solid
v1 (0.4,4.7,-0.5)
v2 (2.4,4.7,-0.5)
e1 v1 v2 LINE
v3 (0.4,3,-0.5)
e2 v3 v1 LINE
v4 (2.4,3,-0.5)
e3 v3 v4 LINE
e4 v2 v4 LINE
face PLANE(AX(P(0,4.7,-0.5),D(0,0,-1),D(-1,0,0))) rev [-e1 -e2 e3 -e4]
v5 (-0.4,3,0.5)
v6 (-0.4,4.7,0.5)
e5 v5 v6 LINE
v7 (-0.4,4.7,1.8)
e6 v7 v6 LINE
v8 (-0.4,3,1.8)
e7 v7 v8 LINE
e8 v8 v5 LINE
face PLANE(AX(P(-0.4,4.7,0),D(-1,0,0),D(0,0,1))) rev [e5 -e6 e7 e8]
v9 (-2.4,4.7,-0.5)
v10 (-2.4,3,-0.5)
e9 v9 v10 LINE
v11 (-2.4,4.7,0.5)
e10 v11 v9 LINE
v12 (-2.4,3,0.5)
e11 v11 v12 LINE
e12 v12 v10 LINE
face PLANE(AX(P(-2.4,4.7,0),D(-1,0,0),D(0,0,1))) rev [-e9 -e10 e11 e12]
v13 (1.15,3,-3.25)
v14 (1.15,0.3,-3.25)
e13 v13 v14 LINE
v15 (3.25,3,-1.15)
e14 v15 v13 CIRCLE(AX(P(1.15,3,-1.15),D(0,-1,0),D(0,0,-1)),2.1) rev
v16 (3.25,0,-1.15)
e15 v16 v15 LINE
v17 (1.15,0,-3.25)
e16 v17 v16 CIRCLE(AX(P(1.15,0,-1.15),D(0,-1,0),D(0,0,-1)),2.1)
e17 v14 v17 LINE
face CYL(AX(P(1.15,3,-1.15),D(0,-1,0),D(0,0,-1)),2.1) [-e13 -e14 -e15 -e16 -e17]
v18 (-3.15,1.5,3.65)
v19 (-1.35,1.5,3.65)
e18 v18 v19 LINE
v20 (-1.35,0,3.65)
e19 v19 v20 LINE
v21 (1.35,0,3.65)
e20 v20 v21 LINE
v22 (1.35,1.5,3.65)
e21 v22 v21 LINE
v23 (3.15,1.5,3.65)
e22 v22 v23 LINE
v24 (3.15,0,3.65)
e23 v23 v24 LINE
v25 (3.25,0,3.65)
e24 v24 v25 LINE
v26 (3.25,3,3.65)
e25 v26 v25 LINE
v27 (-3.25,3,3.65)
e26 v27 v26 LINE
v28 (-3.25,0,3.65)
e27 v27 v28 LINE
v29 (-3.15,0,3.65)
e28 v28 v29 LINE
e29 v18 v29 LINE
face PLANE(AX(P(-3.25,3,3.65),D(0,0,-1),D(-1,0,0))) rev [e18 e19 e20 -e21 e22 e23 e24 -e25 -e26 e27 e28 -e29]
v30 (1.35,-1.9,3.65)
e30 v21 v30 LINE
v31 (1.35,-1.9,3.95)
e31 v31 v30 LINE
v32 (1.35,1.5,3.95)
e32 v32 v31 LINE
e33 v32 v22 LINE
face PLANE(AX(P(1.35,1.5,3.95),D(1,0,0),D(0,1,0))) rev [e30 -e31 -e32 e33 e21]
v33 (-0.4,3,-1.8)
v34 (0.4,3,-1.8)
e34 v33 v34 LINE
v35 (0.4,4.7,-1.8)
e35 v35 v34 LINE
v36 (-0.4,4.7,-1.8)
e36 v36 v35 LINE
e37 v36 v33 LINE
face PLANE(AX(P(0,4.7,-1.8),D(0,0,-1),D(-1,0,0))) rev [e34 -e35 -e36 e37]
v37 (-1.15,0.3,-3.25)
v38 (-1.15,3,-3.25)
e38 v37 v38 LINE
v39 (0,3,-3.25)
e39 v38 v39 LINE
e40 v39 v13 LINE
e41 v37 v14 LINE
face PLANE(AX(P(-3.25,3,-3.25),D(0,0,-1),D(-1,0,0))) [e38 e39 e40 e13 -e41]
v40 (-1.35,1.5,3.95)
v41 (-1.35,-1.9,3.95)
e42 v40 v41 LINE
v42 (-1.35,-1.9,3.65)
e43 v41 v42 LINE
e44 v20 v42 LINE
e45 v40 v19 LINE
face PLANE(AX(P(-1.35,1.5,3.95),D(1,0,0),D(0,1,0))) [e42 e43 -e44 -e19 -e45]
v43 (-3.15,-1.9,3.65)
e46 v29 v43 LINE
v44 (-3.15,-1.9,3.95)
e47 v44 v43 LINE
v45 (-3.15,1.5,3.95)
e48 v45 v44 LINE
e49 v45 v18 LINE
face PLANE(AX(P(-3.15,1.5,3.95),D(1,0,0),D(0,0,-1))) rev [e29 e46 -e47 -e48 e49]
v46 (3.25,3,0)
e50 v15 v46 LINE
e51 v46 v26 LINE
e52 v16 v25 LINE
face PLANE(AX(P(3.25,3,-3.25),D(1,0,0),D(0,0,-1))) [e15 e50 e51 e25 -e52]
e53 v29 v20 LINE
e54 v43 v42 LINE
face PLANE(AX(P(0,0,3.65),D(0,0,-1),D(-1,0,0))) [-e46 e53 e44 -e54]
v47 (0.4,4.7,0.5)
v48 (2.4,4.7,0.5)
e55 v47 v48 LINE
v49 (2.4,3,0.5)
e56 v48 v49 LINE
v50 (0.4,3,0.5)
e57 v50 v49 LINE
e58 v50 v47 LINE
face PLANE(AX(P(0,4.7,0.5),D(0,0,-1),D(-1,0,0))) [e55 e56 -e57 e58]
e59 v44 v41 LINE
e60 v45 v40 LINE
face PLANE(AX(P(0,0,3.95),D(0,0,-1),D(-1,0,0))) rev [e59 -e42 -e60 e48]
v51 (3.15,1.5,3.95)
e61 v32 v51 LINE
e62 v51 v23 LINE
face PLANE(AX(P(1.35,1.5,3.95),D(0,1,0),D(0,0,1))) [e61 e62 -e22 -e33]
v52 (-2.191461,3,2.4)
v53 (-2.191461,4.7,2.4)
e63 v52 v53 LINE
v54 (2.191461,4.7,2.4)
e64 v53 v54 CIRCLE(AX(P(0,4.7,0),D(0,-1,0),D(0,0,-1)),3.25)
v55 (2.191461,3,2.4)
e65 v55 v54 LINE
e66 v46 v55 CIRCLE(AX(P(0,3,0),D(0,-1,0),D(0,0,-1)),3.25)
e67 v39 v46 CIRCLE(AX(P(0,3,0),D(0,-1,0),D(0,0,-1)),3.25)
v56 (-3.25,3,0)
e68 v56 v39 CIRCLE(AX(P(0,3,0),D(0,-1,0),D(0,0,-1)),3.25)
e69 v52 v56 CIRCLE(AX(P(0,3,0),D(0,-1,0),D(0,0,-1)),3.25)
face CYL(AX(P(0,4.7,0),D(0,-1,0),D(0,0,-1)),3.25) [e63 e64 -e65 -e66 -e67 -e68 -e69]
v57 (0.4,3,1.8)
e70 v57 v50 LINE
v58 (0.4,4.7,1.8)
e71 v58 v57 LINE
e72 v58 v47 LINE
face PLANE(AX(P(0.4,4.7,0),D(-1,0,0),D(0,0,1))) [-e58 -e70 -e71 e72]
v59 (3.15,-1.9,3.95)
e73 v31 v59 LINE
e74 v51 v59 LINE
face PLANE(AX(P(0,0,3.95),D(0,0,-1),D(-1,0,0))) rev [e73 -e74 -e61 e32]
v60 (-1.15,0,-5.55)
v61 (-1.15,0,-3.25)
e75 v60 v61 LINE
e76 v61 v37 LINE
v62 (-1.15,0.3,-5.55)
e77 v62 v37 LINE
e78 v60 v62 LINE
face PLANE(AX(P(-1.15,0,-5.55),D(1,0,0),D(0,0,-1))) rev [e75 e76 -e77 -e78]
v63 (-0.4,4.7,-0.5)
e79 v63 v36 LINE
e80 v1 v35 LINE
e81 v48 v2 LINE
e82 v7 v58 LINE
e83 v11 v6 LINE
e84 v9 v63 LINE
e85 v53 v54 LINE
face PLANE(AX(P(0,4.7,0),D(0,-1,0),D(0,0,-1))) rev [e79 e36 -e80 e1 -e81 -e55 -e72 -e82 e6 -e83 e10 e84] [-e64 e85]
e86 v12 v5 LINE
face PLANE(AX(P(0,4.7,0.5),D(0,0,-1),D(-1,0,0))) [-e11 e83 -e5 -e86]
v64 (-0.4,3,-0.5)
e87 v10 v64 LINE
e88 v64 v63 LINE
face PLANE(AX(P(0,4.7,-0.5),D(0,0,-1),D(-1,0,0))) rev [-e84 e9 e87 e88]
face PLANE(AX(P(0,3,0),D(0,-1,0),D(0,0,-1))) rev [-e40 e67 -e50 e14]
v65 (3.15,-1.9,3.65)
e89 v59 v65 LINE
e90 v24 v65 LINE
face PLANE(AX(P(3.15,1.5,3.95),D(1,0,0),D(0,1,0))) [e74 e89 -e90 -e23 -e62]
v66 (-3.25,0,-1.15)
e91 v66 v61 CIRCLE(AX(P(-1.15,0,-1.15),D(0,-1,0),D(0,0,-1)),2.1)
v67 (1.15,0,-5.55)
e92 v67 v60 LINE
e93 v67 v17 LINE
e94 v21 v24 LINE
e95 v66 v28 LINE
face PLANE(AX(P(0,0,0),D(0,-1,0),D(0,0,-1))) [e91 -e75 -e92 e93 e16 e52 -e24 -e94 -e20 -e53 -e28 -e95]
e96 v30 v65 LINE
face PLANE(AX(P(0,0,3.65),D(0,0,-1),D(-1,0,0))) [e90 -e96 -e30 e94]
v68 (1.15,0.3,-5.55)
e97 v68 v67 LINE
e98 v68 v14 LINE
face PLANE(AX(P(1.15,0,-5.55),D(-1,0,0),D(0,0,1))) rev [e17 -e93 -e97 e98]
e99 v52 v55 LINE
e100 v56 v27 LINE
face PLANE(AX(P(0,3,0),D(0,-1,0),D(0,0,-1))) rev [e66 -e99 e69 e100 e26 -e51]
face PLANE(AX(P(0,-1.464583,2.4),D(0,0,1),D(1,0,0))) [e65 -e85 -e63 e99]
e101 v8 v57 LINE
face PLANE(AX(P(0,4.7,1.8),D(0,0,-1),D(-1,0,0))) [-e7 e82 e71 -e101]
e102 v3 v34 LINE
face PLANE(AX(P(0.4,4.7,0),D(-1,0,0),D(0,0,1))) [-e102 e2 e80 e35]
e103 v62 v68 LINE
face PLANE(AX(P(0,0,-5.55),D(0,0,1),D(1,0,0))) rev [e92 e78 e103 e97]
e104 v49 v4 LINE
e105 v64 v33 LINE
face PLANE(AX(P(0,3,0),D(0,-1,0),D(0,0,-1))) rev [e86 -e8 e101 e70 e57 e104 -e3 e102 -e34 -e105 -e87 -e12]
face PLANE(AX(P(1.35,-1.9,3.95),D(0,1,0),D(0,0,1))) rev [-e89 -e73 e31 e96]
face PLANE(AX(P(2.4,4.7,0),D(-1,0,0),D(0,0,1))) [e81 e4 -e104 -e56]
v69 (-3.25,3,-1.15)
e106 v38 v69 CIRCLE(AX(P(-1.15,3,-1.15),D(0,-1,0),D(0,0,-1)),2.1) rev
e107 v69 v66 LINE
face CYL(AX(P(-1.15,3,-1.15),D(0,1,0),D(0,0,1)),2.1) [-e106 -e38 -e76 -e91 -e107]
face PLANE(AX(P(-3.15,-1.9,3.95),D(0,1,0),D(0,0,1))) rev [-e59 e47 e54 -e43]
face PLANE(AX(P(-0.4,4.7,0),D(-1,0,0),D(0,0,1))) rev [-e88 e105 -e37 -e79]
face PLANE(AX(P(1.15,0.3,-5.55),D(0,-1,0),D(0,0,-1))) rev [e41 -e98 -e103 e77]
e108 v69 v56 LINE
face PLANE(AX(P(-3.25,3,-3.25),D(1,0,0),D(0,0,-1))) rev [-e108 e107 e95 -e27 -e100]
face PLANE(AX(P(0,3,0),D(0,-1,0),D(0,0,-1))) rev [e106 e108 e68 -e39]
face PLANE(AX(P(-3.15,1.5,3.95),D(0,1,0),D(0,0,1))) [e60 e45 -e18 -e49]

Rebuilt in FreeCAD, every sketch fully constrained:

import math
import FreeCAD as App
import Part
import Sketcher

V = App.Vector


def edges_at(feature, points):
    """Names of the edges that pass closest to the given points."""
    edges = feature.Shape.Edges
    near = lambda p: min(range(len(edges)), key=lambda i: edges[i].distToShape(Part.Vertex(*p))[0])
    return sorted({f"Edge{near(p) + 1}" for p in points})


def add_polygon(sketch, points):
    """Adds a closed chain of lines whose ends are joined by coincident constraints."""
    first, n = sketch.GeometryCount, len(points)
    for a, b in zip(points, points[1:] + points[:1]):
        sketch.addGeometry(Part.LineSegment(App.Vector(*a, 0), App.Vector(*b, 0)), False)
    for i in range(n):
        sketch.addConstraint(Sketcher.Constraint("Coincident", first + i, 2, first + (i + 1) % n, 1))

doc = App.newDocument("Part")
params = doc.addObject("Spreadsheet::Sheet", "Params")
for row, (alias, value) in enumerate([
    ("sketch1_width", "6.5 mm"),
    ("sketch1_height", "6.9 mm"),
    ("pad1_length", "3 mm"),
    ("sketch2_diameter", "6.5 mm"),
    ("sketch2_width", "2 mm"),
    ("sketch2_height", "1 mm"),
    ("sketch2_width2", "0.8 mm"),
    ("sketch2_height2", "1.3 mm"),
    ("pad2_length", "1.7 mm"),
    ("sketch3_radius", "3.25 mm"),
    ("pocket1_length", "1.7 mm"),
    ("fillet_radius", "2.1 mm"),
    ("sketch4_width", "1.8 mm"),
    ("sketch4_height", "3.4 mm"),
    ("pad3_length", "0.3 mm"),
    ("sketch5_width", "2.3 mm"),
    ("sketch5_height", "0.3 mm"),
    ("pad4_length", "2.3 mm"),
], start=1):
    params.set(f"A{row}", alias)
    params.set(f"B{row}", "=" + value)
    params.setAlias(f"B{row}", alias)

body = doc.addObject("PartDesign::Body", "Body")

# Sketch on XZ plane
sketch1 = doc.addObject("Sketcher::SketchObject", "Sketch")
body.addObject(sketch1)
sketch1.AttachmentSupport = (doc.XZ_Plane, [""])
sketch1.MapMode = "FlatFace"
add_polygon(sketch1, [(-3, -3), (-3, 4), (3, 4), (3, -3)])  # lines 0-3
sketch1.addConstraint([
    Sketcher.Constraint("Vertical", 0),
    Sketcher.Constraint("Horizontal", 1),
    Sketcher.Constraint("Vertical", 2),
    Sketcher.Constraint("Horizontal", 3),
    Sketcher.Constraint("DistanceX", 1, 1, 1, 2, 6.5),
    Sketcher.Constraint("DistanceY", 0, 1, 0, 2, 6.9),
    Sketcher.Constraint("DistanceX", 0, 2, -1, 1, 3.25),
    Sketcher.Constraint("DistanceY", -1, 1, 0, 2, 3.65),
])
sketch1.setExpression("Constraints[8]", "Params.sketch1_width")
sketch1.setExpression("Constraints[9]", "Params.sketch1_height")
pad1 = doc.addObject("PartDesign::Pad", "Pad")
body.addObject(pad1)
pad1.Profile = sketch1
pad1.setExpression("Length", "Params.pad1_length")
pad1.Reversed = True

# Sketch on XZ plane
sketch2 = doc.addObject("Sketcher::SketchObject", "Sketch001")
body.addObject(sketch2)
sketch2.AttachmentSupport = (doc.XZ_Plane, [""])
sketch2.MapMode = "FlatFace"
sketch2.AttachmentOffset = App.Placement(V(0, 0, -3), App.Rotation())
sketch2.addGeometry(Part.Circle(V(0, 0, 0), V(0, 0, 1), 3.2), False)  # 0
add_polygon(sketch2, [(-0.4, 0.5), (-2.4, 0.5), (-2.4, -0.5), (-0.4, -0.5), (-0.4, -1.8), (0.4, -1.8), (0.4, -0.5), (2.4, -0.5), (2.4, 0.5), (0.4, 0.5), (0.4, 1.8), (-0.4, 1.8)])  # lines 1-12
sketch2.addConstraint([
    Sketcher.Constraint("Horizontal", 1),
    Sketcher.Constraint("Vertical", 2),
    Sketcher.Constraint("Horizontal", 3),
    Sketcher.Constraint("Vertical", 4),
    Sketcher.Constraint("Horizontal", 5),
    Sketcher.Constraint("Vertical", 6),
    Sketcher.Constraint("Horizontal", 7),
    Sketcher.Constraint("Vertical", 8),
    Sketcher.Constraint("Horizontal", 9),
    Sketcher.Constraint("Vertical", 10),
    Sketcher.Constraint("Horizontal", 11),
    Sketcher.Constraint("Vertical", 12),
    Sketcher.Constraint("Coincident", 0, 3, -1, 1),
    Sketcher.Constraint("Symmetric", 1, 2, 7, 2, -1, 1),
    Sketcher.Constraint("Symmetric", 3, 2, 9, 2, -1, 1),
    Sketcher.Constraint("Symmetric", 5, 2, 11, 2, -1, 1),
    Sketcher.Constraint("Symmetric", 3, 2, 6, 2, -2),
    Sketcher.Constraint("Diameter", 0, 6.5),
    Sketcher.Constraint("DistanceX", 1, 2, 1, 1, 2.0),
    Sketcher.Constraint("DistanceY", 2, 2, 2, 1, 1.0),
    Sketcher.Constraint("DistanceX", 5, 1, 5, 2, 0.8),
    Sketcher.Constraint("DistanceY", 4, 2, 4, 1, 1.3),
])
sketch2.setExpression("Constraints[29]", "Params.sketch2_diameter")
sketch2.setExpression("Constraints[30]", "Params.sketch2_width")
sketch2.setExpression("Constraints[31]", "Params.sketch2_height")
sketch2.setExpression("Constraints[32]", "Params.sketch2_width2")
sketch2.setExpression("Constraints[33]", "Params.sketch2_height2")
pad2 = doc.addObject("PartDesign::Pad", "Pad001")
body.addObject(pad2)
pad2.Profile = sketch2
pad2.setExpression("Length", "Params.pad2_length")
pad2.Reversed = True

# Sketch on XZ plane
sketch3 = doc.addObject("Sketcher::SketchObject", "Sketch002")
body.addObject(sketch3)
sketch3.AttachmentSupport = (doc.XZ_Plane, [""])
sketch3.MapMode = "FlatFace"
sketch3.AttachmentOffset = App.Placement(V(0, 0, -3), App.Rotation())
sketch3.addGeometry([
    Part.LineSegment(V(2.2, 2.4, 0), V(-2.2, 2.4, 0)),
    Part.ArcOfCircle(Part.Circle(V(0, 0, 0), V(0, 0, 1), 3.2), math.radians(48), math.radians(132)),
], False)
sketch3.addConstraint([
    Sketcher.Constraint("Coincident", 0, 1, 1, 1),
    Sketcher.Constraint("Coincident", 1, 2, 0, 2),
    Sketcher.Constraint("Horizontal", 0),
    Sketcher.Constraint("Coincident", 1, 3, -1, 1),
    Sketcher.Constraint("Radius", 1, 3.25),
    Sketcher.Constraint("DistanceY", -1, 1, 0, 1, 2.4),
])
sketch3.setExpression("Constraints[4]", "Params.sketch3_radius")
pocket1 = doc.addObject("PartDesign::Pocket", "Pocket")
body.addObject(pocket1)
pocket1.Profile = sketch3
pocket1.setExpression("Length", "Params.pocket1_length")
doc.recompute()

fillet = doc.addObject("PartDesign::Fillet", "Fillet")
body.addObject(fillet)
fillet.Base = (pocket1, edges_at(pocket1, [(-3.25, 1.5, -3.25), (3.25, 1.5, -3.25)]))
fillet.setExpression("Radius", "Params.fillet_radius")

# Sketch on XY plane
sketch4 = doc.addObject("Sketcher::SketchObject", "Sketch003")
body.addObject(sketch4)
sketch4.AttachmentSupport = (doc.XY_Plane, [""])
sketch4.MapMode = "FlatFace"
sketch4.AttachmentOffset = App.Placement(V(0, 0, 3.65), App.Rotation())
add_polygon(sketch4, [(-3.1, 1.5), (-3.1, -1.9), (-1.4, -1.9), (-1.4, 1.5)])  # lines 0-3
add_polygon(sketch4, [(1.4, 1.5), (1.4, -1.9), (3.1, -1.9), (3.1, 1.5)])  # lines 4-7
sketch4.addConstraint([
    Sketcher.Constraint("Vertical", 0),
    Sketcher.Constraint("Horizontal", 1),
    Sketcher.Constraint("Vertical", 2),
    Sketcher.Constraint("Horizontal", 3),
    Sketcher.Constraint("Vertical", 4),
    Sketcher.Constraint("Horizontal", 5),
    Sketcher.Constraint("Vertical", 6),
    Sketcher.Constraint("Horizontal", 7),
    Sketcher.Constraint("Symmetric", 1, 2, 4, 2, -2),
    Sketcher.Constraint("Symmetric", 3, 2, 6, 2, -2),
    Sketcher.Constraint("DistanceX", 1, 1, 1, 2, 1.8),
    Sketcher.Constraint("DistanceY", 0, 2, 0, 1, 3.4),
    Sketcher.Constraint("DistanceY", 0, 2, -1, 1, 1.9),
    Sketcher.Constraint("DistanceX", 1, 2, 4, 2, 2.7),
])
sketch4.setExpression("Constraints[18]", "Params.sketch4_width")
sketch4.setExpression("Constraints[19]", "Params.sketch4_height")
pad3 = doc.addObject("PartDesign::Pad", "Pad002")
body.addObject(pad3)
pad3.Profile = sketch4
pad3.setExpression("Length", "Params.pad3_length")

# Sketch on XY plane
sketch5 = doc.addObject("Sketcher::SketchObject", "Sketch004")
body.addObject(sketch5)
sketch5.AttachmentSupport = (doc.XY_Plane, [""])
sketch5.MapMode = "FlatFace"
sketch5.AttachmentOffset = App.Placement(V(0, 0, -3.25), App.Rotation())
add_polygon(sketch5, [(1.15, 0.3), (1.15, 0), (-1.15, 0), (-1.15, 0.3)])  # lines 0-3
sketch5.addConstraint([
    Sketcher.Constraint("Vertical", 0),
    Sketcher.Constraint("Horizontal", 1),
    Sketcher.Constraint("Vertical", 2),
    Sketcher.Constraint("Horizontal", 3),
    Sketcher.Constraint("Symmetric", 0, 2, 1, 2, -1, 1),
    Sketcher.Constraint("DistanceX", 1, 2, 1, 1, 2.3),
    Sketcher.Constraint("DistanceY", 0, 2, 0, 1, 0.3),
])
sketch5.setExpression("Constraints[9]", "Params.sketch5_width")
sketch5.setExpression("Constraints[10]", "Params.sketch5_height")
pad4 = doc.addObject("PartDesign::Pad", "Pad003")
body.addObject(pad4)
pad4.Profile = sketch5
pad4.setExpression("Length", "Params.pad4_length")
pad4.Reversed = True

doc.recompute()
